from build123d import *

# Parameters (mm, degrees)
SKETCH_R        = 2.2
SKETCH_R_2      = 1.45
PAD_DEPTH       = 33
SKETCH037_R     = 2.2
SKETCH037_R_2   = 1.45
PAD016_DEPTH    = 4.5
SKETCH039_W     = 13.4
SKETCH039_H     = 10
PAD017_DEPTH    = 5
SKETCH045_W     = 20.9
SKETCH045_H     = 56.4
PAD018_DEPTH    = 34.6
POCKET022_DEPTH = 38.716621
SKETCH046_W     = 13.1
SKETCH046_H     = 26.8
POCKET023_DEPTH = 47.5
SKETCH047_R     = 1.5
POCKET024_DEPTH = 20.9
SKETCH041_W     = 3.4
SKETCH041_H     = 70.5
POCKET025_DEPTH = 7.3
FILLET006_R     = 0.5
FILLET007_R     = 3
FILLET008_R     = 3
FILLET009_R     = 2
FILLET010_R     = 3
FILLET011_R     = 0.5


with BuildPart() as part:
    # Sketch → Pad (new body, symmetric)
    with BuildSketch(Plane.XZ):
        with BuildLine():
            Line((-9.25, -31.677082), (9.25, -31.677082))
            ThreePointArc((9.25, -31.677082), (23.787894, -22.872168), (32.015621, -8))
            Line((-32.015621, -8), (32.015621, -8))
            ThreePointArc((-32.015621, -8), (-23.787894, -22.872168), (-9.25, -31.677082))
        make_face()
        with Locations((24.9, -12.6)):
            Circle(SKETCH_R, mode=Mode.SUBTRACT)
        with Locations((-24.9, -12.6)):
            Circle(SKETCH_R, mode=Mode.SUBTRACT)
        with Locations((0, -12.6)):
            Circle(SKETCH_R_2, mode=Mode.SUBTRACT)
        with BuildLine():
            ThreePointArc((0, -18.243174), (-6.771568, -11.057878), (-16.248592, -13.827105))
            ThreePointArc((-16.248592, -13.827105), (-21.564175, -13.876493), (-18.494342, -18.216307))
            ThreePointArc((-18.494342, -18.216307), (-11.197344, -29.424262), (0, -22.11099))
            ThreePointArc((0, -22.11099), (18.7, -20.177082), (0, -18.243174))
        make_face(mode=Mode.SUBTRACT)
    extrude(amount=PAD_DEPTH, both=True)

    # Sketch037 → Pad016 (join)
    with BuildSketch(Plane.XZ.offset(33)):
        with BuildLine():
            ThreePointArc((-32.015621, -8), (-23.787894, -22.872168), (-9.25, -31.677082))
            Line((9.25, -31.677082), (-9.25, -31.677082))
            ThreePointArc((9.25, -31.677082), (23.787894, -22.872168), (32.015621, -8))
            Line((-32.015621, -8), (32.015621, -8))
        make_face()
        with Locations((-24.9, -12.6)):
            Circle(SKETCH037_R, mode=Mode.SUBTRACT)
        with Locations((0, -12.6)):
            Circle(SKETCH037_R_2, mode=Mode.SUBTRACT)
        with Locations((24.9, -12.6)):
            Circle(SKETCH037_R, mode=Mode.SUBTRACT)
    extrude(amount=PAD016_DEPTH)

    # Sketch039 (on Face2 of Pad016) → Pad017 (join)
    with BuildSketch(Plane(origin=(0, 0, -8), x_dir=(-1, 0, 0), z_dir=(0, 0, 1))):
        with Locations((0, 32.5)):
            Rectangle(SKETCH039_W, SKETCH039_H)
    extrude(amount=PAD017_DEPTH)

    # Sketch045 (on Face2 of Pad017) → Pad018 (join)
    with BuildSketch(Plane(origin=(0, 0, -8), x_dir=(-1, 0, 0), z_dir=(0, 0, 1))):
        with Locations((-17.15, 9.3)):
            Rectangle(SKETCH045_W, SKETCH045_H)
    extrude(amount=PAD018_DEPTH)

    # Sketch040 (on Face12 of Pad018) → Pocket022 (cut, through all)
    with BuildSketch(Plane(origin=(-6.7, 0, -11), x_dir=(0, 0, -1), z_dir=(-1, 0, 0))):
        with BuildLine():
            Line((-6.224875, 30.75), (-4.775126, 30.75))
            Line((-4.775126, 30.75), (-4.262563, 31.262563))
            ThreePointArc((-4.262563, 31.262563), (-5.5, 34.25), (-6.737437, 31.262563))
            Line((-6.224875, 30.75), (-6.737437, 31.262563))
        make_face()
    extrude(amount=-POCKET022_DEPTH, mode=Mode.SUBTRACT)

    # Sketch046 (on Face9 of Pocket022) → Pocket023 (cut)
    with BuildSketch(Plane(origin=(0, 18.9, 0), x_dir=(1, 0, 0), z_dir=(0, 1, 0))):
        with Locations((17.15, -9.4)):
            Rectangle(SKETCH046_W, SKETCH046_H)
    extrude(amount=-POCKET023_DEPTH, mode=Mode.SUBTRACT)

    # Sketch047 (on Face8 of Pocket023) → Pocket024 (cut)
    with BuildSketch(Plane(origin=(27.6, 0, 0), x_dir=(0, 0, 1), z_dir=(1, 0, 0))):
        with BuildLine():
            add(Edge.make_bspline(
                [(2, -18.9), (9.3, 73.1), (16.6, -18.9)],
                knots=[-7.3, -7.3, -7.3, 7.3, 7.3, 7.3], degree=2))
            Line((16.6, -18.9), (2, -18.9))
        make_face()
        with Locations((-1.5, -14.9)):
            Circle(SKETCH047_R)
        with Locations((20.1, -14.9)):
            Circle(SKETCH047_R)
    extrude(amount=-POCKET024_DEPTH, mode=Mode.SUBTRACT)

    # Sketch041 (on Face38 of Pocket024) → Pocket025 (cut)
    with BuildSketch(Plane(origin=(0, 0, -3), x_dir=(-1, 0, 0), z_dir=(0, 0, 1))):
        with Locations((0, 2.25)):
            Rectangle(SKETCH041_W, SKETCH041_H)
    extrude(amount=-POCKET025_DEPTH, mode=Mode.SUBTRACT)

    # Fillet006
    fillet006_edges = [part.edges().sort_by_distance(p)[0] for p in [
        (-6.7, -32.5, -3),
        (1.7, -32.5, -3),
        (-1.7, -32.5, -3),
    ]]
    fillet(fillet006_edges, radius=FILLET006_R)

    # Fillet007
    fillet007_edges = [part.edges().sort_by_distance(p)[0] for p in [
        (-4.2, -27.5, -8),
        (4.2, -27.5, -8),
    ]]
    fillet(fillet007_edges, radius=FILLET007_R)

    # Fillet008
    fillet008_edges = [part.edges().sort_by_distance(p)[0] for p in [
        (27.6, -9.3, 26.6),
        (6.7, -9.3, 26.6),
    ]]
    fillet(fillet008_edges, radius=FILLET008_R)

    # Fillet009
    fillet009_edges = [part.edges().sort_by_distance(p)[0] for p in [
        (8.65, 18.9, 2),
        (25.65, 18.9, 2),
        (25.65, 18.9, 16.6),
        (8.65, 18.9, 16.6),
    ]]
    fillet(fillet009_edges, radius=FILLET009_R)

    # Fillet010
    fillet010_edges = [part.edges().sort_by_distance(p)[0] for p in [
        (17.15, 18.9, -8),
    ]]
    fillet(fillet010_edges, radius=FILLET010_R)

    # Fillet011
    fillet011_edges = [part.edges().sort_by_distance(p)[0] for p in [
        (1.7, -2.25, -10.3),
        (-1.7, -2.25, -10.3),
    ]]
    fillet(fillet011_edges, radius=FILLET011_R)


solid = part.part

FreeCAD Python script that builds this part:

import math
import FreeCAD as App
import Part
import Sketcher
Q = App.Units.Quantity


def edges_at(feature, points):
    """Names of the edges that pass closest to the given points."""
    edges = feature.Shape.Edges
    near = lambda p: min(range(len(edges)), key=lambda i: edges[i].distToShape(Part.Vertex(*p))[0])
    return sorted({f"Edge{near(p) + 1}" for p in points})

doc = App.newDocument("Part")
body = doc.addObject("PartDesign::Body", "Body")

# Sketch on XZ plane
sketch1 = doc.addObject("Sketcher::SketchObject", "Sketch")
body.addObject(sketch1)
sketch1.AttachmentSupport = (doc.XZ_Plane, [""])
sketch1.MapMode = "FlatFace"
sketch1.addGeometry([
    Part.LineSegment(App.Vector(-9.25, -31.677082, 0), App.Vector(9.25, -31.677082, 0)),  # 0
    Part.ArcOfCircle(Part.Circle(App.Vector(-0.000003, 0.000002, 0), App.Vector(0, 0, 1), 33.000004), math.radians(-73.721704), math.radians(-14.029668)),  # 1
    Part.LineSegment(App.Vector(32.015621, -8, 0), App.Vector(-32.015621, -8, 0)),  # 2
    Part.ArcOfCircle(Part.Circle(App.Vector(0.000003, 0.000002, 0), App.Vector(0, 0, 1), 33.000004), math.radians(-165.970332), math.radians(-106.278296)),  # 3
    Part.ArcOfCircle(Part.Circle(App.Vector(-9.25, -20.177081, 0), App.Vector(0, 0, 1), 9.45), math.radians(11.808794), math.radians(137.781853)),  # 4
    Part.ArcOfCircle(Part.Circle(App.Vector(9.25, -20.177082, 0), App.Vector(0, 0, 1), 9.45), math.radians(-168.191203), math.radians(168.191203)),  # 5
    Part.ArcOfCircle(Part.Circle(App.Vector(-9.25, -20.177081, 0), App.Vector(0, 0, 1), 9.45), math.radians(168.024738), math.radians(348.191199)),  # 6
    Part.ArcOfCircle(Part.Circle(App.Vector(-18.893458, -15.242974, 0), App.Vector(0, 0, 1), 3), math.radians(28.161365), math.radians(277.645217)),  # 7
    Part.Circle(App.Vector(-24.9, -12.6, 0), App.Vector(0, 0, 1), 2.2),  # 8
    Part.Circle(App.Vector(0, -12.6, 0), App.Vector(0, 0, 1), 1.45),  # 9
    Part.Circle(App.Vector(24.9, -12.6, 0), App.Vector(0, 0, 1), 2.2),  # 10
], False)
sketch1.addConstraint([
    Sketcher.Constraint("Coincident", 0, 2, 1, 1),
    Sketcher.Constraint("Coincident", 1, 2, 2, 1),
    Sketcher.Constraint("Coincident", 2, 2, 3, 1),
    Sketcher.Constraint("Coincident", 3, 2, 0, 1),
    Sketcher.Constraint("Coincident", 4, 1, 5, 2),
    Sketcher.Constraint("Coincident", 5, 1, 6, 2),
    Sketcher.Constraint("Coincident", 6, 1, 7, 2),
    Sketcher.Constraint("Coincident", 7, 1, 4, 2),
    Sketcher.Constraint("Horizontal", 0),
    Sketcher.Constraint("Horizontal", 2),
    Sketcher.Constraint("Coincident", 1, 3, -1, 1),
    Sketcher.Constraint("Coincident", 3, 3, -1, 1),
    Sketcher.Constraint("Coincident", 6, 3, 4, 3),
    Sketcher.Constraint("Equal", 1, 3),
    Sketcher.Constraint("Equal", 4, 5),
    Sketcher.Constraint("Equal", 5, 6),
    Sketcher.Constraint("Equal", 8, 10),
    Sketcher.Constraint("Symmetric", 4, 3, 5, 3, -2),
    Sketcher.Constraint("Symmetric", 8, 3, 10, 3, -2),
    Sketcher.Constraint("PointOnObject", 9, 3, -2),
    Sketcher.Constraint("Horizontal", 8, 3, 9, 3),
    Sketcher.Constraint("Vertical", 5, 3, 0, 2),
    Sketcher.Constraint("Radius", 7, Q("3 mm")),
    Sketcher.Constraint("Diameter", 8, Q("4.4 mm")),
    Sketcher.Constraint("Diameter", 9, Q("2.9 mm")),
    Sketcher.Constraint("Radius", 4, Q("9.45 mm")),
    Sketcher.Constraint("DistanceX", 0, 1, 0, 2, Q("18.5 mm")),
    Sketcher.Constraint("DistanceY", 1, 2, -1, 1, Q("8 mm")),
    Sketcher.Constraint("DistanceX", 8, 3, -1, 1, Q("24.9 mm")),
    Sketcher.Constraint("DistanceY", 8, 3, -1, 1, Q("12.6 mm")),
    Sketcher.Constraint("DistanceY", 0, 2, 5, 3, Q("11.5 mm")),
    Sketcher.Constraint("Radius", 1, Q("33.000004 mm")),
    Sketcher.Constraint("DistanceX", 7, 1, -1, 1, Q("16.248592 mm")),
    Sketcher.Constraint("DistanceX", 7, 3, 6, 3, Q("9.643458 mm")),
])
pad1 = doc.addObject("PartDesign::Pad", "Pad")
body.addObject(pad1)
pad1.Profile = sketch1
pad1.Length = 66
pad1.Midplane = True

# Sketch on XZ plane
sketch2 = doc.addObject("Sketcher::SketchObject", "Sketch001")
body.addObject(sketch2)
sketch2.AttachmentSupport = (doc.XZ_Plane, [""])
sketch2.MapMode = "FlatFace"
sketch2.AttachmentOffset = App.Placement(App.Vector(0, 0, 33), App.Rotation())
sketch2.addGeometry([
    Part.ArcOfCircle(Part.Circle(App.Vector(0.000003, 0.000002, 0), App.Vector(0, 0, 1), 33.000004), math.radians(-165.970332), math.radians(-106.278296)),  # 0
    Part.LineSegment(App.Vector(-9.25, -31.677082, 0), App.Vector(9.25, -31.677082, 0)),  # 1
    Part.ArcOfCircle(Part.Circle(App.Vector(-0.000003, 0.000002, 0), App.Vector(0, 0, 1), 33.000004), math.radians(-73.721704), math.radians(-14.029668)),  # 2
    Part.LineSegment(App.Vector(32.015621, -8, 0), App.Vector(-32.015621, -8, 0)),  # 3
    Part.Circle(App.Vector(-24.9, -12.6, 0), App.Vector(0, 0, 1), 2.2),  # 4
    Part.Circle(App.Vector(0, -12.6, 0), App.Vector(0, 0, 1), 1.45),  # 5
    Part.Circle(App.Vector(24.9, -12.6, 0), App.Vector(0, 0, 1), 2.2),  # 6
], False)
sketch2.addConstraint([
    Sketcher.Constraint("Coincident", 0, 2, 1, 1),
    Sketcher.Constraint("Coincident", 1, 2, 2, 1),
    Sketcher.Constraint("Coincident", 2, 2, 3, 1),
    Sketcher.Constraint("Coincident", 3, 2, 0, 1),
    Sketcher.Constraint("Horizontal", 1),
    Sketcher.Constraint("Horizontal", 3),
    Sketcher.Constraint("Coincident", 0, 3, -1, 1),
    Sketcher.Constraint("Coincident", 2, 3, -1, 1),
    Sketcher.Constraint("Equal", 0, 2),
    Sketcher.Constraint("Equal", 4, 6),
    Sketcher.Constraint("Symmetric", 4, 3, 6, 3, -2),
    Sketcher.Constraint("PointOnObject", 5, 3, -2),
    Sketcher.Constraint("Horizontal", 4, 3, 5, 3),
    Sketcher.Constraint("Diameter", 4, Q("4.4 mm")),
    Sketcher.Constraint("Diameter", 5, Q("2.9 mm")),
    Sketcher.Constraint("DistanceX", 1, 1, 1, 2, Q("18.5 mm")),
    Sketcher.Constraint("DistanceY", 2, 2, -1, 1, Q("8 mm")),
    Sketcher.Constraint("DistanceX", 4, 3, -1, 1, Q("24.9 mm")),
    Sketcher.Constraint("DistanceY", 4, 3, -1, 1, Q("12.6 mm")),
    Sketcher.Constraint("Radius", 0, Q("33.000004 mm")),
])
pad2 = doc.addObject("PartDesign::Pad", "Pad001")
body.addObject(pad2)
pad2.Profile = sketch2
pad2.Length = 4.5

# Sketch on XY plane
sketch3 = doc.addObject("Sketcher::SketchObject", "Sketch002")
body.addObject(sketch3)
sketch3.AttachmentSupport = (doc.XY_Plane, [""])
sketch3.MapMode = "FlatFace"
sketch3.AttachmentOffset = App.Placement(App.Vector(0, 0, -8), App.Rotation())
sketch3.addGeometry([
    Part.LineSegment(App.Vector(6.7, -37.5, 0), App.Vector(6.7, -27.5, 0)),
    Part.LineSegment(App.Vector(6.7, -27.5, 0), App.Vector(-6.7, -27.5, 0)),
    Part.LineSegment(App.Vector(-6.7, -27.5, 0), App.Vector(-6.7, -37.5, 0)),
    Part.LineSegment(App.Vector(-6.7, -37.5, 0), App.Vector(6.7, -37.5, 0)),
], False)
sketch3.addConstraint([
    Sketcher.Constraint("Coincident", 0, 2, 1, 1),
    Sketcher.Constraint("Coincident", 1, 2, 2, 1),
    Sketcher.Constraint("Coincident", 2, 2, 3, 1),
    Sketcher.Constraint("Coincident", 3, 2, 0, 1),
    Sketcher.Constraint("Vertical", 0),
    Sketcher.Constraint("Horizontal", 1),
    Sketcher.Constraint("Vertical", 2),
    Sketcher.Constraint("Horizontal", 3),
    Sketcher.Constraint("DistanceY", 0, 1, 0, 2, Q("10 mm")),
    Sketcher.Constraint("DistanceX", 1, 2, 1, 1, Q("13.4 mm")),
    Sketcher.Constraint("DistanceX", -1, 1, 0, 2, Q("6.7 mm")),
    Sketcher.Constraint("DistanceY", 0, 2, -1, 1, Q("27.5 mm")),
])
pad3 = doc.addObject("PartDesign::Pad", "Pad002")
body.addObject(pad3)
pad3.Profile = sketch3
pad3.Length = 5

# Sketch on XY plane
sketch4 = doc.addObject("Sketcher::SketchObject", "Sketch003")
body.addObject(sketch4)
sketch4.AttachmentSupport = (doc.XY_Plane, [""])
sketch4.MapMode = "FlatFace"
sketch4.AttachmentOffset = App.Placement(App.Vector(0, 0, -8), App.Rotation())
sketch4.addGeometry([
    Part.LineSegment(App.Vector(27.6, -37.5, 0), App.Vector(27.6, 18.9, 0)),
    Part.LineSegment(App.Vector(27.6, 18.9, 0), App.Vector(6.7, 18.9, 0)),
    Part.LineSegment(App.Vector(6.7, 18.9, 0), App.Vector(6.7, -37.5, 0)),
    Part.LineSegment(App.Vector(6.7, -37.5, 0), App.Vector(27.6, -37.5, 0)),
], False)
sketch4.addConstraint([
    Sketcher.Constraint("Coincident", 0, 2, 1, 1),
    Sketcher.Constraint("Coincident", 1, 2, 2, 1),
    Sketcher.Constraint("Coincident", 2, 2, 3, 1),
    Sketcher.Constraint("Coincident", 3, 2, 0, 1),
    Sketcher.Constraint("Vertical", 0),
    Sketcher.Constraint("Horizontal", 1),
    Sketcher.Constraint("Vertical", 2),
    Sketcher.Constraint("Horizontal", 3),
    Sketcher.Constraint("DistanceX", 1, 2, 1, 1, Q("20.9 mm")),
    Sketcher.Constraint("DistanceY", 0, 1, 0, 2, Q("56.4 mm")),
    Sketcher.Constraint("DistanceX", -1, 1, 0, 2, Q("27.6 mm")),
    Sketcher.Constraint("DistanceY", -1, 1, 0, 2, Q("18.9 mm")),
])
pad4 = doc.addObject("PartDesign::Pad", "Pad003")
body.addObject(pad4)
pad4.Profile = sketch4
pad4.Length = 34.6

# Sketch on YZ plane
sketch5 = doc.addObject("Sketcher::SketchObject", "Sketch004")
body.addObject(sketch5)
sketch5.AttachmentSupport = (doc.YZ_Plane, [""])
sketch5.MapMode = "FlatFace"
sketch5.AttachmentOffset = App.Placement(App.Vector(0, 0, -6.7), App.Rotation())
sketch5.addGeometry([
    Part.LineSegment(App.Vector(-30.75, -4.775125, 0), App.Vector(-30.75, -6.224874, 0)),
    Part.LineSegment(App.Vector(-30.75, -6.224874, 0), App.Vector(-31.262563, -6.737437, 0)),
    Part.ArcOfCircle(Part.Circle(App.Vector(-32.5, -5.5, 0), App.Vector(0, 0, 1), 1.75), math.radians(45.000003), math.radians(314.999997)),
    Part.LineSegment(App.Vector(-31.262563, -4.262563, 0), App.Vector(-30.75, -4.775125, 0)),
], False)
sketch5.addConstraint([
    Sketcher.Constraint("Coincident", 0, 2, 1, 1),
    Sketcher.Constraint("Tangent", 1, 2, 2, 2),
    Sketcher.Constraint("Tangent", 2, 1, 3, 1),
    Sketcher.Constraint("Coincident", 3, 2, 0, 1),
    Sketcher.Constraint("Vertical", 0),
    Sketcher.Constraint("Perpendicular", 1, 3),
    Sketcher.Constraint("Vertical", 1, 2, 2, 1),
    Sketcher.Constraint("Radius", 2, Q("1.75 mm")),
    Sketcher.Constraint("DistanceX", 2, 3, -1, 1, Q("32.5 mm")),
    Sketcher.Constraint("DistanceY", 2, 3, -1, 1, Q("5.5 mm")),
    Sketcher.Constraint("DistanceX", 0, 2, -1, 1, Q("30.75 mm")),
])
pocket1 = doc.addObject("PartDesign::Pocket", "Pocket")
body.addObject(pocket1)
pocket1.Profile = sketch5
pocket1.Type = "ThroughAll"
pocket1.Reversed = True

# Sketch on XZ plane
sketch6 = doc.addObject("Sketcher::SketchObject", "Sketch005")
body.addObject(sketch6)
sketch6.AttachmentSupport = (doc.XZ_Plane, [""])
sketch6.MapMode = "FlatFace"
sketch6.AttachmentOffset = App.Placement(App.Vector(0, 0, -18.9), App.Rotation())
sketch6.addGeometry([
    Part.LineSegment(App.Vector(10.6, -4, 0), App.Vector(10.6, 22.8, 0)),
    Part.LineSegment(App.Vector(10.6, 22.8, 0), App.Vector(23.7, 22.8, 0)),
    Part.LineSegment(App.Vector(23.7, 22.8, 0), App.Vector(23.7, -4, 0)),
    Part.LineSegment(App.Vector(23.7, -4, 0), App.Vector(10.6, -4, 0)),
], False)
sketch6.addConstraint([
    Sketcher.Constraint("Coincident", 0, 2, 1, 1),
    Sketcher.Constraint("Coincident", 1, 2, 2, 1),
    Sketcher.Constraint("Coincident", 2, 2, 3, 1),
    Sketcher.Constraint("Coincident", 3, 2, 0, 1),
    Sketcher.Constraint("Vertical", 0),
    Sketcher.Constraint("Horizontal", 1),
    Sketcher.Constraint("Vertical", 2),
    Sketcher.Constraint("Horizontal", 3),
    Sketcher.Constraint("DistanceX", 1, 1, 1, 2, Q("13.1 mm")),
    Sketcher.Constraint("DistanceY", 0, 1, 0, 2, Q("26.8 mm")),
    Sketcher.Constraint("DistanceY", 2, 2, -1, 1, Q("4 mm")),
    Sketcher.Constraint("DistanceX", -1, 1, 0, 2, Q("10.6 mm")),
])
pocket2 = doc.addObject("PartDesign::Pocket", "Pocket001")
body.addObject(pocket2)
pocket2.Profile = sketch6
pocket2.Length = 47.5
pocket2.Reversed = True

# Sketch on YZ plane
sketch7 = doc.addObject("Sketcher::SketchObject", "Sketch006")
body.addObject(sketch7)
sketch7.AttachmentSupport = (doc.YZ_Plane, [""])
sketch7.MapMode = "FlatFace"
sketch7.AttachmentOffset = App.Placement(App.Vector(0, 0, 27.6), App.Rotation())
sketch7.addGeometry([
    Part.BSplineCurve([App.Vector(18.9, 2, 0), App.Vector(-73.1, 9.3, 0), App.Vector(18.9, 16.6, 0)], [3, 3], [-7.3, 7.3], False, 2, [1, 1, 1], False),
    Part.LineSegment(App.Vector(18.9, 2, 0), App.Vector(18.9, 16.6, 0)),
    Part.Circle(App.Vector(14.9, -1.5, 0), App.Vector(0, 0, 1), 1.5),
    Part.Circle(App.Vector(14.9, 20.1, 0), App.Vector(0, 0, 1), 1.5),
], False)
sketch7.addConstraint([
    Sketcher.Constraint("Block", 0),
    Sketcher.Constraint("Coincident", 0, 1, 1, 1),
    Sketcher.Constraint("Coincident", 1, 2, 0, 2),
    Sketcher.Constraint("Equal", 2, 3),
    Sketcher.Constraint("Vertical", 2, 3, 3, 3),
    Sketcher.Constraint("Diameter", 2, Q("3 mm")),
    Sketcher.Constraint("DistanceX", 3, 3, 1, 2, Q("4 mm")),
    Sketcher.Constraint("DistanceY", 2, 3, -1, 1, Q("1.5 mm")),
    Sketcher.Constraint("DistanceY", -1, 1, 3, 3, Q("20.1 mm")),
])
pocket3 = doc.addObject("PartDesign::Pocket", "Pocket002")
body.addObject(pocket3)
pocket3.Profile = sketch7
pocket3.Length = 20.9

# Sketch on XY plane
sketch8 = doc.addObject("Sketcher::SketchObject", "Sketch007")
body.addObject(sketch8)
sketch8.AttachmentSupport = (doc.XY_Plane, [""])
sketch8.MapMode = "FlatFace"
sketch8.AttachmentOffset = App.Placement(App.Vector(0, 0, -3), App.Rotation())
sketch8.addGeometry([
    Part.LineSegment(App.Vector(1.7, -37.5, 0), App.Vector(1.7, 33, 0)),
    Part.LineSegment(App.Vector(1.7, 33, 0), App.Vector(-1.7, 33, 0)),
    Part.LineSegment(App.Vector(-1.7, 33, 0), App.Vector(-1.7, -37.5, 0)),
    Part.LineSegment(App.Vector(-1.7, -37.5, 0), App.Vector(1.7, -37.5, 0)),
], False)
sketch8.addConstraint([
    Sketcher.Constraint("Coincident", 0, 2, 1, 1),
    Sketcher.Constraint("Coincident", 1, 2, 2, 1),
    Sketcher.Constraint("Coincident", 2, 2, 3, 1),
    Sketcher.Constraint("Coincident", 3, 2, 0, 1),
    Sketcher.Constraint("Vertical", 0),
    Sketcher.Constraint("Horizontal", 1),
    Sketcher.Constraint("Vertical", 2),
    Sketcher.Constraint("Horizontal", 3),
    Sketcher.Constraint("DistanceX", 1, 2, 1, 1, Q("3.4 mm")),
    Sketcher.Constraint("DistanceY", 0, 1, 0, 2, Q("70.5 mm")),
    Sketcher.Constraint("DistanceY", -1, 1, 0, 2, Q("33 mm")),
    Sketcher.Constraint("DistanceX", -1, 1, 0, 2, Q("1.7 mm")),
])
pocket4 = doc.addObject("PartDesign::Pocket", "Pocket003")
body.addObject(pocket4)
pocket4.Profile = sketch8
pocket4.Length = 7.3
doc.recompute()

fillet = doc.addObject("PartDesign::Fillet", "Fillet")
body.addObject(fillet)
fillet.Base = (pocket4, edges_at(pocket4, [(-6.7, -32.5, -3), (1.7, -32.5, -3), (-1.7, -32.5, -3)]))
fillet.Radius = 0.5
doc.recompute()

fillet2 = doc.addObject("PartDesign::Fillet", "Fillet001")
body.addObject(fillet2)
fillet2.Base = (fillet, edges_at(fillet, [(-4.2, -27.5, -8), (4.2, -27.5, -8)]))
fillet2.Radius = 3
doc.recompute()

fillet3 = doc.addObject("PartDesign::Fillet", "Fillet002")
body.addObject(fillet3)
fillet3.Base = (fillet2, edges_at(fillet2, [(27.6, -9.3, 26.6), (6.7, -9.3, 26.6)]))
fillet3.Radius = 3
doc.recompute()

fillet4 = doc.addObject("PartDesign::Fillet", "Fillet003")
body.addObject(fillet4)
fillet4.Base = (fillet3, edges_at(fillet3, [
    (8.65, 18.9, 2),
    (25.65, 18.9, 2),
    (25.65, 18.9, 16.6),
    (8.65, 18.9, 16.6),
]))
fillet4.Radius = 2
doc.recompute()

fillet5 = doc.addObject("PartDesign::Fillet", "Fillet004")
body.addObject(fillet5)
fillet5.Base = (fillet4, edges_at(fillet4, [(17.15, 18.9, -8)]))
fillet5.Radius = 3
doc.recompute()

fillet6 = doc.addObject("PartDesign::Fillet", "Fillet005")
body.addObject(fillet6)
fillet6.Base = (fillet5, edges_at(fillet5, [(1.7, -2.25, -10.3), (-1.7, -2.25, -10.3)]))
fillet6.Radius = 0.5

doc.recompute()
